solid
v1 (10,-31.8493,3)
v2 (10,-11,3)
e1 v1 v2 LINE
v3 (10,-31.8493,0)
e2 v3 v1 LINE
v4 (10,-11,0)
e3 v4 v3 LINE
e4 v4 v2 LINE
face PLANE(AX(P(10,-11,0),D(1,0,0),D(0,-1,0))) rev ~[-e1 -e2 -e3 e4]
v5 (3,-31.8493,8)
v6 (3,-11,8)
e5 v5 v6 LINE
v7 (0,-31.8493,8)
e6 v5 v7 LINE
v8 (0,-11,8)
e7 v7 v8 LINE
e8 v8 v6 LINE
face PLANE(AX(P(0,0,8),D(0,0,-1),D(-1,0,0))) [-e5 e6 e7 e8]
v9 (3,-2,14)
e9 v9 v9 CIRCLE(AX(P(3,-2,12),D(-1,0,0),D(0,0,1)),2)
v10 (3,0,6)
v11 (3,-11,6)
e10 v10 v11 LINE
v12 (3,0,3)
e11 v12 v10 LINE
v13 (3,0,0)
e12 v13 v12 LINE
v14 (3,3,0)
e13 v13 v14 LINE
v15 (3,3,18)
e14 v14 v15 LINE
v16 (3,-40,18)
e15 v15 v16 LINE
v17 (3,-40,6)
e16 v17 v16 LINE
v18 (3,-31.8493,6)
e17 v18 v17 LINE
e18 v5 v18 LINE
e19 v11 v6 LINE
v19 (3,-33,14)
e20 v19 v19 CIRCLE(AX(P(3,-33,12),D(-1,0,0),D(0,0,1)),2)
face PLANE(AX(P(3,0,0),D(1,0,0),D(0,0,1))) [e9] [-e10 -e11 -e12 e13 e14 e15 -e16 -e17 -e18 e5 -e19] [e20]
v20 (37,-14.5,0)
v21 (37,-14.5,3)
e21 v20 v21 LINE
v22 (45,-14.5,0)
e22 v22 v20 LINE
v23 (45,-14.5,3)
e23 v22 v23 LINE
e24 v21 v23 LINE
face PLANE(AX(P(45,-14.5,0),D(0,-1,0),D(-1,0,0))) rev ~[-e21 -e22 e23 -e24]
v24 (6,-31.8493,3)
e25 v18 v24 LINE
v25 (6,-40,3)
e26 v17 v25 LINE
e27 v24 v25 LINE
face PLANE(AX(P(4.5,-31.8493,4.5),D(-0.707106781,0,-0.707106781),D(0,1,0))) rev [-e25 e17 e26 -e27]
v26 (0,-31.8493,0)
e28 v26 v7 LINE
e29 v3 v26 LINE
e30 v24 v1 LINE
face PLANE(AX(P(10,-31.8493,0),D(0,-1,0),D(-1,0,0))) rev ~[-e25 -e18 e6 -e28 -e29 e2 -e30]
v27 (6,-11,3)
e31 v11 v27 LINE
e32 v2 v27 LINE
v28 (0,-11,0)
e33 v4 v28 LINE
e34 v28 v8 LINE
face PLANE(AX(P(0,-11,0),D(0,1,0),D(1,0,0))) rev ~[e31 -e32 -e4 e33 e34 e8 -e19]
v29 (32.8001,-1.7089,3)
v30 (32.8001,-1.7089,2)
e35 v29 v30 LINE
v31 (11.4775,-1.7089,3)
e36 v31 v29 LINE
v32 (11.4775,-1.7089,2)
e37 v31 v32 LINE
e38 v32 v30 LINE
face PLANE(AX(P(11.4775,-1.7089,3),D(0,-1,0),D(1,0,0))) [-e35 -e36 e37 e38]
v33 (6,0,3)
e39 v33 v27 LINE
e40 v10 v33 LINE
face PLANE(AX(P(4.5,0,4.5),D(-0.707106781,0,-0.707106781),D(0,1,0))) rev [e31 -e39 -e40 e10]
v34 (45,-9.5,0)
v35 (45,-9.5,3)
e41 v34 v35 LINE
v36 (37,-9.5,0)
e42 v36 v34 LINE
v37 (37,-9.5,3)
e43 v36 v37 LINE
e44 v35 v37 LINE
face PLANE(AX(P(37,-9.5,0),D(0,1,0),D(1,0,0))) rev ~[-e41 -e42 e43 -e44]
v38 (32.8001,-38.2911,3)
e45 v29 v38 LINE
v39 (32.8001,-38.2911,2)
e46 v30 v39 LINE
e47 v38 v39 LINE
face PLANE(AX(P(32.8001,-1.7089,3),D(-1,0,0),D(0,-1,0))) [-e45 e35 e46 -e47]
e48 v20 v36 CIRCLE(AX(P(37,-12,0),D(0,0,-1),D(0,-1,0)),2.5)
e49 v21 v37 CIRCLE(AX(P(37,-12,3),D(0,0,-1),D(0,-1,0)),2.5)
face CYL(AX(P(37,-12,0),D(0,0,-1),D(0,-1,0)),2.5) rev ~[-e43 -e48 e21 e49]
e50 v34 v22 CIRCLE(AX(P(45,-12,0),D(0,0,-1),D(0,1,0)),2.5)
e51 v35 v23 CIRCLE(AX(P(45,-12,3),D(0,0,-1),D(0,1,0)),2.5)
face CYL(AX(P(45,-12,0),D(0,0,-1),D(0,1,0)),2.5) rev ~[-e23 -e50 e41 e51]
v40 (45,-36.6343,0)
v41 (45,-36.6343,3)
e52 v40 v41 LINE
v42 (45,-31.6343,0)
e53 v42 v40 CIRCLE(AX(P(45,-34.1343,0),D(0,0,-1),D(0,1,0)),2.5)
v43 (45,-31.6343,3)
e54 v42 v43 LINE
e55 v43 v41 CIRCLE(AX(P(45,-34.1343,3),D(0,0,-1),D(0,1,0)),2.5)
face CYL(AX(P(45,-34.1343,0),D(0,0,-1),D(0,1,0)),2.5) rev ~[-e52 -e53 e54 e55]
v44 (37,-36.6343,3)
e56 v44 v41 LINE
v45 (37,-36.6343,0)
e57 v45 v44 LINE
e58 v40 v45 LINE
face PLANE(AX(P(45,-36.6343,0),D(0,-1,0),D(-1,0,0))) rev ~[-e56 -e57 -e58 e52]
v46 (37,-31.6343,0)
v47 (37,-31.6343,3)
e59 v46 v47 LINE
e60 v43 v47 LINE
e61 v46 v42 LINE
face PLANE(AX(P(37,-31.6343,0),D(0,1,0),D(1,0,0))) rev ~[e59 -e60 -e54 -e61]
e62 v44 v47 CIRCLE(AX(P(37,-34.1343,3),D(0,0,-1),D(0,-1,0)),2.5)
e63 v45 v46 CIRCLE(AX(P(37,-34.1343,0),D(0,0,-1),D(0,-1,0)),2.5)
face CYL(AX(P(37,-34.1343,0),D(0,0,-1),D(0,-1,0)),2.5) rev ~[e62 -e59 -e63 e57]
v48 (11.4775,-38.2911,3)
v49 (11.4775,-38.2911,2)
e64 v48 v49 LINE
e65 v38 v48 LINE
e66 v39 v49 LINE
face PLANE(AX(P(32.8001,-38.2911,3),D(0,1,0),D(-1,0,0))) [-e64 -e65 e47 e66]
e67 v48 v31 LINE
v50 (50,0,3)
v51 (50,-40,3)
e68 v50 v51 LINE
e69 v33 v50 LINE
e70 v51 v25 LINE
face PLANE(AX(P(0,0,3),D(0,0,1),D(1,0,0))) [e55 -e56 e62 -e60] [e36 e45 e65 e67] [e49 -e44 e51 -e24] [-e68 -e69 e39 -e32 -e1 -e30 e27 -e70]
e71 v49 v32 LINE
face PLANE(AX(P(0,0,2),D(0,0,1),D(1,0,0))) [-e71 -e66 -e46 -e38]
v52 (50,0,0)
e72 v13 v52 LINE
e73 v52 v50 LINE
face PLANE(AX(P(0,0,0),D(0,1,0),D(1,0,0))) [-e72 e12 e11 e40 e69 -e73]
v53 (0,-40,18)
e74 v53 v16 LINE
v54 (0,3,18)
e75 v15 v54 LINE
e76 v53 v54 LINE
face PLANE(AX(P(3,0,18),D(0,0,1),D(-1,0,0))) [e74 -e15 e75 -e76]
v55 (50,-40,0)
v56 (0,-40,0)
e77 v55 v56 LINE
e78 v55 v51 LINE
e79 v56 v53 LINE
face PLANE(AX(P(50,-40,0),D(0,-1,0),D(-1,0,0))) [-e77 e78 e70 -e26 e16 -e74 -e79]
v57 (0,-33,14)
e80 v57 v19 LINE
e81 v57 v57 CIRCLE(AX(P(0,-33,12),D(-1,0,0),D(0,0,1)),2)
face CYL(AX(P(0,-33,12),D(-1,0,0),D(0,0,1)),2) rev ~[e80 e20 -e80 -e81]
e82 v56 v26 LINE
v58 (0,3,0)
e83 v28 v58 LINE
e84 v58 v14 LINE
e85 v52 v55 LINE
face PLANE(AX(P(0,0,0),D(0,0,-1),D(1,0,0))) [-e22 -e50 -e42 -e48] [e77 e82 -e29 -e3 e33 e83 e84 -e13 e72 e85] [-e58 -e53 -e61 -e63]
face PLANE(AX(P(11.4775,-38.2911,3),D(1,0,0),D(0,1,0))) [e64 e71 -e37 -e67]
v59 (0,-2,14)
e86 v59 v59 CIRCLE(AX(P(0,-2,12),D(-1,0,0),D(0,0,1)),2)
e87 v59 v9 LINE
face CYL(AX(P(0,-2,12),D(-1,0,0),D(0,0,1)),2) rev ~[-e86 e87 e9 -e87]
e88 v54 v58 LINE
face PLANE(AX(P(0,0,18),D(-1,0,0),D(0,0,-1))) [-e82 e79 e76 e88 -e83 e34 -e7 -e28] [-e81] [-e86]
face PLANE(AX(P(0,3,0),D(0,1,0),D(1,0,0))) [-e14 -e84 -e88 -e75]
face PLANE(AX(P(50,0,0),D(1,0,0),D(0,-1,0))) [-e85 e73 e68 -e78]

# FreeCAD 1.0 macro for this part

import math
import FreeCAD as App
import Part
import Sketcher

V = App.Vector
Q = App.Units.Quantity


def edges_at(feature, points):
    """Names of the edges that pass closest to the given points."""
    edges = feature.Shape.Edges
    near = lambda p: min(range(len(edges)), key=lambda i: edges[i].distToShape(Part.Vertex(*p))[0])
    return sorted({f"Edge{near(p) + 1}" for p in points})


def add_polygon(sketch, points):
    """Adds a closed chain of lines whose ends are joined by coincident constraints."""
    first, n = sketch.GeometryCount, len(points)
    for a, b in zip(points, points[1:] + points[:1]):
        sketch.addGeometry(Part.LineSegment(App.Vector(*a, 0), App.Vector(*b, 0)), False)
    for i in range(n):
        sketch.addConstraint(Sketcher.Constraint("Coincident", first + i, 2, first + (i + 1) % n, 1))

doc = App.newDocument("Part")
params = doc.addObject("Spreadsheet::Sheet", "Params")
for row, (alias, value) in enumerate([
    ("sketch1_width", "50 mm"),
    ("sketch1_height", "40 mm"),
    ("pad1_length", "3 mm"),
    ("sketch2_width", "3 mm"),
    ("sketch2_height", "40 mm"),
    ("pad2_length", "15 mm"),
    ("sketch3_width", "3 mm"),
    ("sketch3_height", "18 mm"),
    ("pad3_length", "3 mm"),
    ("sketch4_width", "10 mm"),
    ("pocket1_length", "8 mm"),
    ("sketch5_diameter", "4 mm"),
    ("sketch6_diameter", "4 mm"),
    ("sketch7_radius", "2.5 mm"),
    ("sketch7_width", "8 mm"),
    ("sketch8_radius", "2.5 mm"),
    ("sketch8_width", "8 mm"),
    ("pocket6_length", "1 mm"),
    ("chamfer_size", "3 mm"),
    ("chamfer2_size", "3 mm"),
], start=1):
    params.set(f"A{row}", alias)
    params.set(f"B{row}", "=" + value)
    params.setAlias(f"B{row}", alias)

body = doc.addObject("PartDesign::Body", "Body")

# Sketch on XY plane
sketch1 = doc.addObject("Sketcher::SketchObject", "Sketch")
body.addObject(sketch1)
sketch1.AttachmentSupport = (doc.XY_Plane, [""])
sketch1.MapMode = "FlatFace"
add_polygon(sketch1, [(50, 0), (0, 0), (0, -40), (50, -40)])  # lines 0-3
sketch1.addConstraint(Sketcher.Constraint("Horizontal", 0))
sketch1.addConstraint(Sketcher.Constraint("Vertical", 1))
sketch1.addConstraint(Sketcher.Constraint("Horizontal", 2))
sketch1.addConstraint(Sketcher.Constraint("Vertical", 3))
sketch1.addConstraint(Sketcher.Constraint("Coincident", 0, 2, -1, 1))
sketch1.addConstraint(Sketcher.Constraint("DistanceX", 0, 2, 0, 1, Q("50 mm")))
sketch1.addConstraint(Sketcher.Constraint("DistanceY", 1, 2, 1, 1, Q("40 mm")))
sketch1.setExpression("Constraints[9]", "Params.sketch1_width")
sketch1.setExpression("Constraints[10]", "Params.sketch1_height")
pad1 = doc.addObject("PartDesign::Pad", "Pad")
body.addObject(pad1)
pad1.Profile = sketch1
pad1.setExpression("Length", "Params.pad1_length")

# Sketch on XY plane
sketch2 = doc.addObject("Sketcher::SketchObject", "Sketch001")
body.addObject(sketch2)
sketch2.AttachmentSupport = (doc.XY_Plane, [""])
sketch2.MapMode = "FlatFace"
sketch2.AttachmentOffset = App.Placement(V(0, 0, 3), App.Rotation())
add_polygon(sketch2, [(0, 0), (0, -40), (3, -40), (3, 0)])  # lines 0-3
sketch2.addConstraint(Sketcher.Constraint("Vertical", 0))
sketch2.addConstraint(Sketcher.Constraint("Horizontal", 1))
sketch2.addConstraint(Sketcher.Constraint("Vertical", 2))
sketch2.addConstraint(Sketcher.Constraint("Horizontal", 3))
sketch2.addConstraint(Sketcher.Constraint("Coincident", 3, 2, -1, 1))
sketch2.addConstraint(Sketcher.Constraint("DistanceX", 1, 1, 1, 2, Q("3 mm")))
sketch2.addConstraint(Sketcher.Constraint("DistanceY", 0, 2, 0, 1, Q("40 mm")))
sketch2.setExpression("Constraints[9]", "Params.sketch2_width")
sketch2.setExpression("Constraints[10]", "Params.sketch2_height")
pad2 = doc.addObject("PartDesign::Pad", "Pad001")
body.addObject(pad2)
pad2.Profile = sketch2
pad2.setExpression("Length", "Params.pad2_length")

# Sketch on XZ plane
sketch3 = doc.addObject("Sketcher::SketchObject", "Sketch002")
body.addObject(sketch3)
sketch3.AttachmentSupport = (doc.XZ_Plane, [""])
sketch3.MapMode = "FlatFace"
add_polygon(sketch3, [(3, 0), (0, 0), (0, 18), (3, 18)])  # lines 0-3
sketch3.addConstraint(Sketcher.Constraint("Horizontal", 0))
sketch3.addConstraint(Sketcher.Constraint("Vertical", 1))
sketch3.addConstraint(Sketcher.Constraint("Horizontal", 2))
sketch3.addConstraint(Sketcher.Constraint("Vertical", 3))
sketch3.addConstraint(Sketcher.Constraint("Coincident", 0, 2, -1, 1))
sketch3.addConstraint(Sketcher.Constraint("DistanceX", 0, 2, 0, 1, Q("3 mm")))
sketch3.addConstraint(Sketcher.Constraint("DistanceY", 1, 1, 1, 2, Q("18 mm")))
sketch3.setExpression("Constraints[9]", "Params.sketch3_width")
sketch3.setExpression("Constraints[10]", "Params.sketch3_height")
pad3 = doc.addObject("PartDesign::Pad", "Pad002")
body.addObject(pad3)
pad3.Profile = sketch3
pad3.setExpression("Length", "Params.pad3_length")
pad3.Reversed = True

# Sketch on XY plane
sketch4 = doc.addObject("Sketcher::SketchObject", "Sketch003")
body.addObject(sketch4)
sketch4.AttachmentSupport = (doc.XY_Plane, [""])
sketch4.MapMode = "FlatFace"
add_polygon(sketch4, [(10, -32), (0, -32), (0, -11), (10, -11)])  # lines 0-3
sketch4.addConstraint(Sketcher.Constraint("Horizontal", 0))
sketch4.addConstraint(Sketcher.Constraint("Vertical", 1))
sketch4.addConstraint(Sketcher.Constraint("Horizontal", 2))
sketch4.addConstraint(Sketcher.Constraint("Vertical", 3))
sketch4.addConstraint(Sketcher.Constraint("PointOnObject", 0, 2, -2))
sketch4.addConstraint(Sketcher.Constraint("DistanceX", 0, 2, 0, 1, Q("10 mm")))
sketch4.addConstraint(Sketcher.Constraint("DistanceY", 1, 2, -1, 1, Q("11 mm")))
sketch4.addConstraint(Sketcher.Constraint("DistanceY", 1, 1, 1, 2, Q("20.8493 mm")))
sketch4.setExpression("Constraints[9]", "Params.sketch4_width")
pocket1 = doc.addObject("PartDesign::Pocket", "Pocket")
body.addObject(pocket1)
pocket1.Profile = sketch4
pocket1.setExpression("Length", "Params.pocket1_length")
pocket1.Reversed = True

# Sketch on YZ plane
sketch5 = doc.addObject("Sketcher::SketchObject", "Sketch004")
body.addObject(sketch5)
sketch5.AttachmentSupport = (doc.YZ_Plane, [""])
sketch5.MapMode = "FlatFace"
sketch5.addGeometry(Part.Circle(V(-2, 12, 0), V(0, 0, 1), 2), False)
sketch5.addConstraint(Sketcher.Constraint("Diameter", 0, Q("4 mm")))
sketch5.addConstraint(Sketcher.Constraint("DistanceX", 0, 3, -1, 1, Q("2 mm")))
sketch5.addConstraint(Sketcher.Constraint("DistanceY", -1, 1, 0, 3, Q("12 mm")))
sketch5.setExpression("Constraints[0]", "Params.sketch5_diameter")
pocket2 = doc.addObject("PartDesign::Pocket", "Pocket001")
body.addObject(pocket2)
pocket2.Profile = sketch5
pocket2.Type = "ThroughAll"
pocket2.Reversed = True

# Sketch on YZ plane
sketch6 = doc.addObject("Sketcher::SketchObject", "Sketch005")
body.addObject(sketch6)
sketch6.AttachmentSupport = (doc.YZ_Plane, [""])
sketch6.MapMode = "FlatFace"
sketch6.addGeometry(Part.Circle(V(-33, 12, 0), V(0, 0, 1), 2), False)
sketch6.addConstraint(Sketcher.Constraint("Diameter", 0, Q("4 mm")))
sketch6.addConstraint(Sketcher.Constraint("DistanceX", 0, 3, -1, 1, Q("33 mm")))
sketch6.addConstraint(Sketcher.Constraint("DistanceY", -1, 1, 0, 3, Q("12 mm")))
sketch6.setExpression("Constraints[0]", "Params.sketch6_diameter")
pocket3 = doc.addObject("PartDesign::Pocket", "Pocket002")
body.addObject(pocket3)
pocket3.Profile = sketch6
pocket3.Type = "ThroughAll"
pocket3.Reversed = True

# Sketch on XY plane
sketch7 = doc.addObject("Sketcher::SketchObject", "Sketch006")
body.addObject(sketch7)
sketch7.AttachmentSupport = (doc.XY_Plane, [""])
sketch7.MapMode = "FlatFace"
sketch7.addGeometry(Part.ArcOfCircle(Part.Circle(V(45, -12, 0), V(0, 0, 1), 2.5), math.radians(-90), math.radians(90)), False)
sketch7.addGeometry(Part.LineSegment(V(45, -14.5, 0), V(37, -14.5, 0)), False)
sketch7.addGeometry(Part.ArcOfCircle(Part.Circle(V(37, -12, 0), V(0, 0, 1), 2.5), math.radians(90), math.radians(270)), False)
sketch7.addGeometry(Part.LineSegment(V(37, -9.5, 0), V(45, -9.5, 0)), False)
sketch7.addConstraint(Sketcher.Constraint("Tangent", 0, 1, 1, 1))
sketch7.addConstraint(Sketcher.Constraint("Tangent", 1, 2, 2, 2))
sketch7.addConstraint(Sketcher.Constraint("Tangent", 2, 1, 3, 1))
sketch7.addConstraint(Sketcher.Constraint("Tangent", 3, 2, 0, 2))
sketch7.addConstraint(Sketcher.Constraint("Horizontal", 1))
sketch7.addConstraint(Sketcher.Constraint("Horizontal", 3))
sketch7.addConstraint(Sketcher.Constraint("Radius", 0, Q("2.5 mm")))
sketch7.addConstraint(Sketcher.Constraint("DistanceX", 1, 2, 1, 1, Q("8 mm")))
sketch7.addConstraint(Sketcher.Constraint("DistanceX", -1, 1, 0, 3, Q("45 mm")))
sketch7.addConstraint(Sketcher.Constraint("DistanceY", 0, 3, -1, 1, Q("12 mm")))
sketch7.setExpression("Constraints[6]", "Params.sketch7_radius")
sketch7.setExpression("Constraints[7]", "Params.sketch7_width")
pocket4 = doc.addObject("PartDesign::Pocket", "Pocket003")
body.addObject(pocket4)
pocket4.Profile = sketch7
pocket4.Type = "ThroughAll"
pocket4.Reversed = True

# Sketch on XY plane
sketch8 = doc.addObject("Sketcher::SketchObject", "Sketch007")
body.addObject(sketch8)
sketch8.AttachmentSupport = (doc.XY_Plane, [""])
sketch8.MapMode = "FlatFace"
sketch8.addGeometry(Part.ArcOfCircle(Part.Circle(V(45, -34.1, 0), V(0, 0, 1), 2.5), math.radians(-90), math.radians(90)), False)
sketch8.addGeometry(Part.LineSegment(V(45, -36.6, 0), V(37, -36.6, 0)), False)
sketch8.addGeometry(Part.ArcOfCircle(Part.Circle(V(37, -34.1, 0), V(0, 0, 1), 2.5), math.radians(90), math.radians(270)), False)
sketch8.addGeometry(Part.LineSegment(V(37, -31.6, 0), V(45, -31.6, 0)), False)
sketch8.addConstraint(Sketcher.Constraint("Tangent", 0, 1, 1, 1))
sketch8.addConstraint(Sketcher.Constraint("Tangent", 1, 2, 2, 2))
sketch8.addConstraint(Sketcher.Constraint("Tangent", 2, 1, 3, 1))
sketch8.addConstraint(Sketcher.Constraint("Tangent", 3, 2, 0, 2))
sketch8.addConstraint(Sketcher.Constraint("Horizontal", 1))
sketch8.addConstraint(Sketcher.Constraint("Horizontal", 3))
sketch8.addConstraint(Sketcher.Constraint("Radius", 0, Q("2.5 mm")))
sketch8.addConstraint(Sketcher.Constraint("DistanceX", 1, 2, 1, 1, Q("8 mm")))
sketch8.addConstraint(Sketcher.Constraint("DistanceX", -1, 1, 0, 3, Q("45 mm")))
sketch8.addConstraint(Sketcher.Constraint("DistanceY", 0, 3, -1, 1, Q("34.1343 mm")))
sketch8.setExpression("Constraints[6]", "Params.sketch8_radius")
sketch8.setExpression("Constraints[7]", "Params.sketch8_width")
pocket5 = doc.addObject("PartDesign::Pocket", "Pocket004")
body.addObject(pocket5)
pocket5.Profile = sketch8
pocket5.Type = "ThroughAll"
pocket5.Reversed = True

# Sketch on XY plane
sketch9 = doc.addObject("Sketcher::SketchObject", "Sketch008")
body.addObject(sketch9)
sketch9.AttachmentSupport = (doc.XY_Plane, [""])
sketch9.MapMode = "FlatFace"
sketch9.AttachmentOffset = App.Placement(V(0, 0, 3), App.Rotation())
add_polygon(sketch9, [(33, -2), (11, -2), (11, -38), (33, -38)])  # lines 0-3
sketch9.addConstraint(Sketcher.Constraint("Horizontal", 0))
sketch9.addConstraint(Sketcher.Constraint("Vertical", 1))
sketch9.addConstraint(Sketcher.Constraint("Horizontal", 2))
sketch9.addConstraint(Sketcher.Constraint("Vertical", 3))
sketch9.addConstraint(Sketcher.Constraint("DistanceX", -1, 1, 2, 2, Q("32.8 mm")))
sketch9.addConstraint(Sketcher.Constraint("DistanceX", 0, 2, 0, 1, Q("21.3226 mm")))
sketch9.addConstraint(Sketcher.Constraint("DistanceY", 1, 2, 1, 1, Q("36.5822 mm")))
sketch9.addConstraint(Sketcher.Constraint("DistanceY", 0, 2, -1, 1, Q("1.709 mm")))
pocket6 = doc.addObject("PartDesign::Pocket", "Pocket005")
body.addObject(pocket6)
pocket6.Profile = sketch9
pocket6.setExpression("Length", "Params.pocket6_length")
doc.recompute()

chamfer = doc.addObject("PartDesign::Chamfer", "Chamfer")
body.addObject(chamfer)
chamfer.Base = (pocket6, edges_at(pocket6, [(3, -35.925, 3)]))
chamfer.setExpression("Size", "Params.chamfer_size")
doc.recompute()

chamfer2 = doc.addObject("PartDesign::Chamfer", "Chamfer001")
body.addObject(chamfer2)
chamfer2.Base = (chamfer, edges_at(chamfer, [(3, -5.5, 3)]))
chamfer2.setExpression("Size", "Params.chamfer2_size")

doc.recompute()
